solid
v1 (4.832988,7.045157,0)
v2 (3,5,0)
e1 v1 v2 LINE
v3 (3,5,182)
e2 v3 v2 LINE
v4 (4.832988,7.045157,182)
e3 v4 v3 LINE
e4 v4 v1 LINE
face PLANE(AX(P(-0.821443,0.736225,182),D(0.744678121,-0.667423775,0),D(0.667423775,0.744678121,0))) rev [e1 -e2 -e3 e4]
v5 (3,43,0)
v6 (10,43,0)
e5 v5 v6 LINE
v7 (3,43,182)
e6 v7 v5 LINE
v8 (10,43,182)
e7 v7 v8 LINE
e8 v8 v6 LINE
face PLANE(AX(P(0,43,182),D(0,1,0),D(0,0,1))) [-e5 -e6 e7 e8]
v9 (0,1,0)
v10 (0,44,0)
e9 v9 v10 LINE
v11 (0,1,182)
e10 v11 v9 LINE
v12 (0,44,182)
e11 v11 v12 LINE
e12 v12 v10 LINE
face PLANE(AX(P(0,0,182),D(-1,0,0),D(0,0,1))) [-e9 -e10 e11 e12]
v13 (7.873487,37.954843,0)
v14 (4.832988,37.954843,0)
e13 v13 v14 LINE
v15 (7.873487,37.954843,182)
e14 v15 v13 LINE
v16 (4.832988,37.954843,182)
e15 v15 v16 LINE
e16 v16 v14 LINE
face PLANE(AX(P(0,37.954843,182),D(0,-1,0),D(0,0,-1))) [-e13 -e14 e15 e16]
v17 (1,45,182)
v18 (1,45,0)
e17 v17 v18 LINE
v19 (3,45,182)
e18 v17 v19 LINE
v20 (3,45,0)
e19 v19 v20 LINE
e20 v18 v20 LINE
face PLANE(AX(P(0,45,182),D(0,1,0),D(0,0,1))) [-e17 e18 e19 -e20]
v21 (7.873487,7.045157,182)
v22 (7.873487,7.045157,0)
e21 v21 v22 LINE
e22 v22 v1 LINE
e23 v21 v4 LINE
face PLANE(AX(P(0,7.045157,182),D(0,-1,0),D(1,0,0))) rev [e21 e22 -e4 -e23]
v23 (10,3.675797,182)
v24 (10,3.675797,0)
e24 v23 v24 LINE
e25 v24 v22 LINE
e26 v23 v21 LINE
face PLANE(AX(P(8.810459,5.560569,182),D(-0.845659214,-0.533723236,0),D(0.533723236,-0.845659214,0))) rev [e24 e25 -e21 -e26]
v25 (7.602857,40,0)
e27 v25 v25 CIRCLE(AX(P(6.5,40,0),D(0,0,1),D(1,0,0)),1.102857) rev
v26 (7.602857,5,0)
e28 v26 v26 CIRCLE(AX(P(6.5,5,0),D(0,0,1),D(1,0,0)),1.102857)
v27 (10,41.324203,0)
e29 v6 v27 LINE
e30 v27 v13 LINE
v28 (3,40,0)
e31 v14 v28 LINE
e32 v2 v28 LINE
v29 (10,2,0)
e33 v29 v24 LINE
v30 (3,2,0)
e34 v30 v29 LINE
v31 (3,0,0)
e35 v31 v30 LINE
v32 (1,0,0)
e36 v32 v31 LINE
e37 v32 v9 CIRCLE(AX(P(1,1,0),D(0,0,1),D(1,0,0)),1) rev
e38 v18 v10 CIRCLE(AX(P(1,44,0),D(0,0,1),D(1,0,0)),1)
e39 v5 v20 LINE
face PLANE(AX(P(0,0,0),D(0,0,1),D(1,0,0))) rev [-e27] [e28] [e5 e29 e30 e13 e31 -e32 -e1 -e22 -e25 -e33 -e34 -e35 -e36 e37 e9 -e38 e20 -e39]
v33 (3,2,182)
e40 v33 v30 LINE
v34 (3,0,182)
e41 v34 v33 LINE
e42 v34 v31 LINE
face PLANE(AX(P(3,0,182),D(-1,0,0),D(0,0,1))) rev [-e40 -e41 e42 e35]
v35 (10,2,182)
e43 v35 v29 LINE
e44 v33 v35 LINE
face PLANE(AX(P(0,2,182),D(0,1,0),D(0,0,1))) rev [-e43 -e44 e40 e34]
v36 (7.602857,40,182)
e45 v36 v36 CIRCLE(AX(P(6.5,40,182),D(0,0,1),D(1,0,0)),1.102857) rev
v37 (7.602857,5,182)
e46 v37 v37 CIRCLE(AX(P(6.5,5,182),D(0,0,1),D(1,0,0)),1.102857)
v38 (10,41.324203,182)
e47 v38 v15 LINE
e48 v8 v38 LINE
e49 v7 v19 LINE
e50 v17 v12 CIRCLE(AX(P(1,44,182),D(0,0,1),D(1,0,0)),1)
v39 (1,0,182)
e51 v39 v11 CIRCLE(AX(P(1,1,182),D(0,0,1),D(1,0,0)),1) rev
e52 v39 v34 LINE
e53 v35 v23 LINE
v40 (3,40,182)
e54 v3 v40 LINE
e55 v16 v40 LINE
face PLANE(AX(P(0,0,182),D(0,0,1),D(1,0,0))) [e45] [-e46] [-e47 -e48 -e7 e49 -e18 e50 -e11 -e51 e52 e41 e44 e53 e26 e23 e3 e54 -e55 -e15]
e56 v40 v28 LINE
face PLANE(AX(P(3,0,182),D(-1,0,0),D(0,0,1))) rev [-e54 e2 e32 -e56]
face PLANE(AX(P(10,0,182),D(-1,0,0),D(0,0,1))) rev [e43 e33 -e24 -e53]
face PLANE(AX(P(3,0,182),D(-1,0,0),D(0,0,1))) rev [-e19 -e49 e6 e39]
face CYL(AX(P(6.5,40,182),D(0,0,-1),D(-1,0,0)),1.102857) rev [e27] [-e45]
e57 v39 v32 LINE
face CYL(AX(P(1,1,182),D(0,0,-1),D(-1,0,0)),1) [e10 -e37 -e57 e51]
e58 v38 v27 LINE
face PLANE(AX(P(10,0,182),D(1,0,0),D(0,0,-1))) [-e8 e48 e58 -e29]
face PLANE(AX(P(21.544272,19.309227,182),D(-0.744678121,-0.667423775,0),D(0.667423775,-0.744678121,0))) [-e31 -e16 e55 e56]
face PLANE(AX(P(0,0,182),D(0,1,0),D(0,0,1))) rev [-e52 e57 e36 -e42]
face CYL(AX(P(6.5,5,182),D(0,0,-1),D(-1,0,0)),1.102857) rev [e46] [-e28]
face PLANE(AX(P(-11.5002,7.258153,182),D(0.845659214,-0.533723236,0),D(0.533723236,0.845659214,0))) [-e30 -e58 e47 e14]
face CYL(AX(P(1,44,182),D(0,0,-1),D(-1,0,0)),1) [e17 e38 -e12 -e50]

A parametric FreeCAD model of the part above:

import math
import FreeCAD as App
import Part
import Sketcher

doc = App.newDocument("Part")
body = doc.addObject("PartDesign::Body", "Body")

# Sketch on XY plane
sketch1 = body.newObject("Sketcher::SketchObject", "Sketch")
sketch1.AttachmentSupport = (doc.getObject("XY_Plane"), [""])
sketch1.MapMode = "FlatFace"
sketch1.addGeometry(Part.LineSegment(App.Vector(3, 45, 0), App.Vector(1, 45, 0)), False)
sketch1.addGeometry(Part.ArcOfCircle(Part.Circle(App.Vector(1, 44, 0), App.Vector(0, 0, 1), 1), math.radians(90), math.radians(180)), False)
sketch1.addGeometry(Part.LineSegment(App.Vector(0, 44, 0), App.Vector(0, 1, 0)), False)
sketch1.addGeometry(Part.ArcOfCircle(Part.Circle(App.Vector(1, 1, 0), App.Vector(0, 0, 1), 1), math.radians(-180), math.radians(-90)), False)
sketch1.addGeometry(Part.LineSegment(App.Vector(1, 0, 0), App.Vector(3, 0, 0)), False)
sketch1.addGeometry(Part.LineSegment(App.Vector(3, 0, 0), App.Vector(3, 2, 0)), False)
sketch1.addGeometry(Part.LineSegment(App.Vector(3, 2, 0), App.Vector(10, 2, 0)), False)
sketch1.addGeometry(Part.LineSegment(App.Vector(10, 2, 0), App.Vector(10, 3.7, 0)), False)
sketch1.addGeometry(Part.LineSegment(App.Vector(10, 3.7, 0), App.Vector(7.9, 7, 0)), False)
sketch1.addGeometry(Part.LineSegment(App.Vector(7.9, 7, 0), App.Vector(4.8, 7, 0)), False)
sketch1.addGeometry(Part.LineSegment(App.Vector(4.8, 7, 0), App.Vector(3, 5, 0)), False)
sketch1.addGeometry(Part.LineSegment(App.Vector(3, 5, 0), App.Vector(3, 40, 0)), False)
sketch1.addGeometry(Part.LineSegment(App.Vector(3, 40, 0), App.Vector(4.8, 38, 0)), False)
sketch1.addGeometry(Part.LineSegment(App.Vector(4.8, 38, 0), App.Vector(7.9, 38, 0)), False)
sketch1.addGeometry(Part.LineSegment(App.Vector(7.9, 38, 0), App.Vector(10, 41.3, 0)), False)
sketch1.addGeometry(Part.LineSegment(App.Vector(10, 41.3, 0), App.Vector(10, 43, 0)), False)
sketch1.addGeometry(Part.LineSegment(App.Vector(10, 43, 0), App.Vector(3, 43, 0)), False)
sketch1.addGeometry(Part.LineSegment(App.Vector(3, 43, 0), App.Vector(3, 45, 0)), False)
sketch1.addGeometry(Part.Circle(App.Vector(6.5, 5, 0), App.Vector(0, 0, 1), 1.1), False)
sketch1.addGeometry(Part.Circle(App.Vector(6.5, 40, 0), App.Vector(0, 0, 1), 1.1), False)
sketch1.addConstraint(Sketcher.Constraint("Tangent", 0, 2, 1, 1))
sketch1.addConstraint(Sketcher.Constraint("Tangent", 1, 2, 2, 1))
sketch1.addConstraint(Sketcher.Constraint("Tangent", 2, 2, 3, 1))
sketch1.addConstraint(Sketcher.Constraint("Tangent", 3, 2, 4, 1))
sketch1.addConstraint(Sketcher.Constraint("Coincident", 4, 2, 5, 1))
sketch1.addConstraint(Sketcher.Constraint("Coincident", 5, 2, 6, 1))
sketch1.addConstraint(Sketcher.Constraint("Coincident", 6, 2, 7, 1))
sketch1.addConstraint(Sketcher.Constraint("Coincident", 7, 2, 8, 1))
sketch1.addConstraint(Sketcher.Constraint("Coincident", 8, 2, 9, 1))
sketch1.addConstraint(Sketcher.Constraint("Coincident", 9, 2, 10, 1))
sketch1.addConstraint(Sketcher.Constraint("Coincident", 10, 2, 11, 1))
sketch1.addConstraint(Sketcher.Constraint("Coincident", 11, 2, 12, 1))
sketch1.addConstraint(Sketcher.Constraint("Coincident", 12, 2, 13, 1))
sketch1.addConstraint(Sketcher.Constraint("Coincident", 13, 2, 14, 1))
sketch1.addConstraint(Sketcher.Constraint("Coincident", 14, 2, 15, 1))
sketch1.addConstraint(Sketcher.Constraint("Coincident", 15, 2, 16, 1))
sketch1.addConstraint(Sketcher.Constraint("Coincident", 16, 2, 17, 1))
sketch1.addConstraint(Sketcher.Constraint("Coincident", 17, 2, 0, 1))
sketch1.addConstraint(Sketcher.Constraint("Horizontal", 0))
sketch1.addConstraint(Sketcher.Constraint("Vertical", 2))
sketch1.addConstraint(Sketcher.Constraint("Horizontal", 4))
sketch1.addConstraint(Sketcher.Constraint("Vertical", 5))
sketch1.addConstraint(Sketcher.Constraint("Horizontal", 6))
sketch1.addConstraint(Sketcher.Constraint("Vertical", 7))
sketch1.addConstraint(Sketcher.Constraint("Horizontal", 9))
sketch1.addConstraint(Sketcher.Constraint("Vertical", 11))
sketch1.addConstraint(Sketcher.Constraint("Horizontal", 13))
sketch1.addConstraint(Sketcher.Constraint("Vertical", 15))
sketch1.addConstraint(Sketcher.Constraint("Horizontal", 16))
sketch1.addConstraint(Sketcher.Constraint("Vertical", 17))
sketch1.addConstraint(Sketcher.Constraint("Equal", 1, 3))
sketch1.addConstraint(Sketcher.Constraint("Equal", 18, 19))
sketch1.addConstraint(Sketcher.Constraint("PointOnObject", 1, 2, -2))
sketch1.addConstraint(Sketcher.Constraint("PointOnObject", 3, 2, -1))
sketch1.addConstraint(Sketcher.Constraint("Horizontal", 18, 3, 10, 2))
sketch1.addConstraint(Sketcher.Constraint("Horizontal", 19, 3, 11, 2))
sketch1.addConstraint(Sketcher.Constraint("Vertical", 18, 3, 19, 3))
sketch1.addConstraint(Sketcher.Constraint("Vertical", 5, 2, 10, 2))
sketch1.addConstraint(Sketcher.Constraint("Vertical", 9, 2, 12, 2))
sketch1.addConstraint(Sketcher.Constraint("Vertical", 8, 2, 13, 2))
sketch1.addConstraint(Sketcher.Constraint("Vertical", 7, 2, 14, 2))
sketch1.addConstraint(Sketcher.Constraint("Vertical", 11, 2, 16, 2))
sketch1.addConstraint(Sketcher.Constraint("Equal", 4, 5))
sketch1.addConstraint(Sketcher.Constraint("Equal", 7, 15))
sketch1.addConstraint(Sketcher.Constraint("Equal", 5, 17))
sketch1.addConstraint(Sketcher.Constraint("Equal", 10, 12))
sketch1.addConstraint(Sketcher.Constraint("Equal", 8, 14))
sketch1.addConstraint(Sketcher.Constraint("Radius", 1, 1.0))
sketch1.addConstraint(Sketcher.Constraint("DistanceX", 0, 2, 0, 1, 2.0))
sketch1.addConstraint(Sketcher.Constraint("DistanceX", 6, 1, 6, 2, 7.0))
sketch1.addConstraint(Sketcher.Constraint("DistanceY", 2, 2, 2, 1, 43.0))
sketch1.addConstraint(Sketcher.Constraint("DistanceY", 11, 1, 11, 2, 35.0))
sketch1.addConstraint(Sketcher.Constraint("DistanceX", -1, 1, 18, 3, 6.5))
sketch1.addConstraint(Sketcher.Constraint("Diameter", 18, 2.205714))
sketch1.addConstraint(Sketcher.Constraint("DistanceX", 9, 2, 9, 1, 3.040498))
sketch1.addConstraint(Sketcher.Constraint("Distance", 8, 3.9843))
sketch1.addConstraint(Sketcher.Constraint("DistanceY", 7, 1, 7, 2, 1.675797))
sketch1.addConstraint(Sketcher.Constraint("DistanceX", -1, 1, 9, 2, 4.832988))
pad1 = body.newObject("PartDesign::Pad", "Pad")
pad1.Profile = sketch1
pad1.Length = 182

doc.recompute()
